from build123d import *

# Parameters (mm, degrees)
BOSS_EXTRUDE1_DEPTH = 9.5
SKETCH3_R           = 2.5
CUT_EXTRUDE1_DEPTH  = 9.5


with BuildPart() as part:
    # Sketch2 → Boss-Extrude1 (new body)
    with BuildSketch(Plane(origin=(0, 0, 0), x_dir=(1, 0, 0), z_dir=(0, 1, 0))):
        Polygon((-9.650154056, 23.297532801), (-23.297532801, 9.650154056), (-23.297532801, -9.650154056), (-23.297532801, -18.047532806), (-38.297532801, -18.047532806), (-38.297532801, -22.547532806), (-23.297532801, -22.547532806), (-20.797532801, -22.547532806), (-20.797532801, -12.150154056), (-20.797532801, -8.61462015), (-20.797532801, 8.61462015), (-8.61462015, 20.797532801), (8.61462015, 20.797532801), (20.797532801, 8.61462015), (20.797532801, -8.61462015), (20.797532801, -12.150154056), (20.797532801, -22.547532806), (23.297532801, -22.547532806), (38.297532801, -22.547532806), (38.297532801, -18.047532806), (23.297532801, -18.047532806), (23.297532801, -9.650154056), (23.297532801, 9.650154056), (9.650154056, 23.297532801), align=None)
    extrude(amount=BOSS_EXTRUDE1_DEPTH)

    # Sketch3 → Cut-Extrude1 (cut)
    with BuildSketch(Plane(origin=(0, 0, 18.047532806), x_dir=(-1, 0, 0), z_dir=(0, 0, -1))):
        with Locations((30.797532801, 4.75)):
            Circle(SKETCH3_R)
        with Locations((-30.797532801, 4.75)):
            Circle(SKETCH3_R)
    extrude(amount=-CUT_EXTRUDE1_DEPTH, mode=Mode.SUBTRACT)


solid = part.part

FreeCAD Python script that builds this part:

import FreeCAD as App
import Part
import Sketcher

doc = App.newDocument("Part")
body = doc.addObject("PartDesign::Body", "Body")

sketch1 = body.newObject("Sketcher::SketchObject", "Sketch")
sketch1.AttachmentSupport = (doc.getObject("XZ_Plane"), [""])
sketch1.MapMode = "FlatFace"
sketch1.addGeometry([
    Part.LineSegment(App.Vector(-9.650154, -23.297533, 0), App.Vector(-23.297533, -9.650154, 0)),
    Part.LineSegment(App.Vector(-23.297533, -9.650154, 0), App.Vector(-23.297533, 18.047533, 0)),
    Part.LineSegment(App.Vector(-23.297533, 18.047533, 0), App.Vector(-38.297533, 18.047533, 0)),
    Part.LineSegment(App.Vector(-38.297533, 18.047533, 0), App.Vector(-38.297533, 22.547533, 0)),
    Part.LineSegment(App.Vector(-38.297533, 22.547533, 0), App.Vector(-20.797533, 22.547533, 0)),
    Part.LineSegment(App.Vector(-20.797533, 22.547533, 0), App.Vector(-20.797533, -8.61462, 0)),
    Part.LineSegment(App.Vector(-20.797533, -8.61462, 0), App.Vector(-8.61462, -20.797533, 0)),
    Part.LineSegment(App.Vector(-8.61462, -20.797533, 0), App.Vector(8.61462, -20.797533, 0)),
    Part.LineSegment(App.Vector(8.61462, -20.797533, 0), App.Vector(20.797533, -8.61462, 0)),
    Part.LineSegment(App.Vector(20.797533, -8.61462, 0), App.Vector(20.797533, 22.547533, 0)),
    Part.LineSegment(App.Vector(20.797533, 22.547533, 0), App.Vector(38.297533, 22.547533, 0)),
    Part.LineSegment(App.Vector(38.297533, 22.547533, 0), App.Vector(38.297533, 18.047533, 0)),
    Part.LineSegment(App.Vector(38.297533, 18.047533, 0), App.Vector(23.297533, 18.047533, 0)),
    Part.LineSegment(App.Vector(23.297533, 18.047533, 0), App.Vector(23.297533, -9.650154, 0)),
    Part.LineSegment(App.Vector(23.297533, -9.650154, 0), App.Vector(9.650154, -23.297533, 0)),
    Part.LineSegment(App.Vector(9.650154, -23.297533, 0), App.Vector(-9.650154, -23.297533, 0)),
], False)
sketch1.addConstraint([
    Sketcher.Constraint("Coincident", 0, 2, 1, 1),
    Sketcher.Constraint("Coincident", 1, 2, 2, 1),
    Sketcher.Constraint("Coincident", 2, 2, 3, 1),
    Sketcher.Constraint("Coincident", 3, 2, 4, 1),
    Sketcher.Constraint("Coincident", 4, 2, 5, 1),
    Sketcher.Constraint("Coincident", 5, 2, 6, 1),
    Sketcher.Constraint("Coincident", 6, 2, 7, 1),
    Sketcher.Constraint("Coincident", 7, 2, 8, 1),
    Sketcher.Constraint("Coincident", 8, 2, 9, 1),
    Sketcher.Constraint("Coincident", 9, 2, 10, 1),
    Sketcher.Constraint("Coincident", 10, 2, 11, 1),
    Sketcher.Constraint("Coincident", 11, 2, 12, 1),
    Sketcher.Constraint("Coincident", 12, 2, 13, 1),
    Sketcher.Constraint("Coincident", 13, 2, 14, 1),
    Sketcher.Constraint("Coincident", 14, 2, 15, 1),
    Sketcher.Constraint("Coincident", 15, 2, 0, 1),
    Sketcher.Constraint("Vertical", 1),
    Sketcher.Constraint("Horizontal", 2),
    Sketcher.Constraint("Vertical", 3),
    Sketcher.Constraint("Horizontal", 4),
    Sketcher.Constraint("Vertical", 5),
    Sketcher.Constraint("Horizontal", 7),
    Sketcher.Constraint("Vertical", 9),
    Sketcher.Constraint("Horizontal", 10),
    Sketcher.Constraint("Vertical", 11),
    Sketcher.Constraint("Horizontal", 12),
    Sketcher.Constraint("Vertical", 13),
    Sketcher.Constraint("Horizontal", 15),
    Sketcher.Constraint("Symmetric", 5, 2, 8, 2, -2),
    Sketcher.Constraint("Symmetric", 3, 2, 10, 2, -2),
    Sketcher.Constraint("Symmetric", 1, 2, 12, 2, -2),
    Sketcher.Constraint("Parallel", 0, 6),
    Sketcher.Constraint("Perpendicular", 6, 8),
    Sketcher.Constraint("Parallel", 8, 14),
    Sketcher.Constraint("Horizontal", 0, 2, 13, 2),
    Sketcher.Constraint("Equal", 6, 8),
    Sketcher.Constraint("DistanceX", 2, 2, 2, 1, 15.0),
    Sketcher.Constraint("DistanceX", 4, 1, 4, 2, 17.5),
    Sketcher.Constraint("DistanceY", 3, 1, 3, 2, 4.5),
    Sketcher.Constraint("DistanceY", 14, 2, 7, 2, 2.5),
    Sketcher.Constraint("DistanceX", 7, 1, 7, 2, 17.22924),
    Sketcher.Constraint("DistanceX", 15, 2, 15, 1, 19.300308),
    Sketcher.Constraint("Distance", 0, 19.300308),
    Sketcher.Constraint("DistanceY", 1, 1, 1, 2, 27.697687),
    Sketcher.Constraint("DistanceY", 5, 2, -1, 1, 8.61462),
])
pad1 = body.newObject("PartDesign::Pad", "Pad")
pad1.Profile = sketch1
pad1.Length = 9.5
pad1.Reversed = True

sketch2 = body.newObject("Sketcher::SketchObject", "Sketch001")
sketch2.AttachmentSupport = (doc.getObject("XY_Plane"), [""])
sketch2.MapMode = "FlatFace"
sketch2.AttachmentOffset = App.Placement(App.Vector(0, 0, 18.047533), App.Rotation())
sketch2.addGeometry([
    Part.Circle(App.Vector(-30.797533, 4.75, 0), App.Vector(0, 0, 1), 2.5),
    Part.Circle(App.Vector(30.797533, 4.75, 0), App.Vector(0, 0, 1), 2.5),
], False)
sketch2.addConstraint([
    Sketcher.Constraint("Equal", 0, 1),
    Sketcher.Constraint("Symmetric", 0, 3, 1, 3, -2),
    Sketcher.Constraint("Diameter", 0, 5.0),
    Sketcher.Constraint("DistanceY", -1, 1, 0, 3, 4.75),
    Sketcher.Constraint("DistanceX", 0, 3, -1, 1, 30.797533),
])
pocket1 = body.newObject("PartDesign::Pocket", "Pocket")
pocket1.Profile = sketch2
pocket1.Length = 9.5
pocket1.Reversed = True

doc.recompute()
